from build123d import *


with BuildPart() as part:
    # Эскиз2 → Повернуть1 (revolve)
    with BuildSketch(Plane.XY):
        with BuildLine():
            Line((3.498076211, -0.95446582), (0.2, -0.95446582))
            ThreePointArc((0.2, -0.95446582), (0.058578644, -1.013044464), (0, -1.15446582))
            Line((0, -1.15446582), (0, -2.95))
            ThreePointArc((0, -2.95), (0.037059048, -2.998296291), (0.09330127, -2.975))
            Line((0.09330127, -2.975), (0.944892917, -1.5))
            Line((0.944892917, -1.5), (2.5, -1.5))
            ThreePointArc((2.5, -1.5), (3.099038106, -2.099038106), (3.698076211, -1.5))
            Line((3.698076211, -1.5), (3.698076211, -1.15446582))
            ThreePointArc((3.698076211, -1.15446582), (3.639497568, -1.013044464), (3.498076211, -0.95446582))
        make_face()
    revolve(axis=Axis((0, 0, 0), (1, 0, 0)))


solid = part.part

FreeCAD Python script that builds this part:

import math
import FreeCAD as App
import Part
import Sketcher

V = App.Vector
Q = App.Units.Quantity

doc = App.newDocument("Part")
body = doc.addObject("PartDesign::Body", "Body")

# Sketch on XY plane
sketch1 = body.newObject("Sketcher::SketchObject", "Sketch")
sketch1.AttachmentSupport = (doc.getObject("XY_Plane"), [""])
sketch1.MapMode = "FlatFace"
sketch1.addGeometry([
    Part.LineSegment(V(3.5, -0.95, 0), V(0.2, -0.95, 0)),  # 0
    Part.ArcOfCircle(Part.Circle(V(0.2, -1.15, 0), V(0, 0, 1), 0.2), math.radians(90), math.radians(180)),  # 1
    Part.LineSegment(V(0, -1.15, 0), V(0, -2.95, 0)),  # 2
    Part.ArcOfCircle(Part.Circle(V(0.05, -2.95, 0), V(0, 0, 1), 0.05), math.radians(180), math.radians(330)),  # 3
    Part.LineSegment(V(0.09, -2.98, 0), V(0.94, -1.5, 0)),  # 4
    Part.LineSegment(V(0.94, -1.5, 0), V(2.5, -1.5, 0)),  # 5
    Part.ArcOfCircle(Part.Circle(V(3.1, -1.5, 0), V(0, 0, 1), 0.6), math.radians(180), math.radians(360)),  # 6
    Part.LineSegment(V(3.7, -1.5, 0), V(3.7, -1.15, 0)),  # 7
    Part.ArcOfCircle(Part.Circle(V(3.5, -1.15, 0), V(0, 0, 1), 0.2), math.radians(0), math.radians(90)),  # 8
], False)
sketch1.addConstraint([
    Sketcher.Constraint("Tangent", 0, 2, 1, 1),
    Sketcher.Constraint("Tangent", 1, 2, 2, 1),
    Sketcher.Constraint("Tangent", 2, 2, 3, 1),
    Sketcher.Constraint("Tangent", 3, 2, 4, 1),
    Sketcher.Constraint("Coincident", 4, 2, 5, 1),
    Sketcher.Constraint("Coincident", 5, 2, 6, 1),
    Sketcher.Constraint("Tangent", 6, 2, 7, 1),
    Sketcher.Constraint("Tangent", 7, 2, 8, 1),
    Sketcher.Constraint("Tangent", 8, 2, 0, 1),
    Sketcher.Constraint("Horizontal", 0),
    Sketcher.Constraint("Vertical", 2),
    Sketcher.Constraint("Horizontal", 5),
    Sketcher.Constraint("Vertical", 7),
    Sketcher.Constraint("Equal", 1, 8),
    Sketcher.Constraint("PointOnObject", 1, 2, -2),
    Sketcher.Constraint("Horizontal", 6, 3, 4, 2),
    Sketcher.Constraint("Radius", 1, Q("0.2 mm")),
    Sketcher.Constraint("Angle", 4, Q("60 deg")),
    Sketcher.Constraint("Radius", 3, Q("0.05 mm")),
    Sketcher.Constraint("DistanceY", 6, 3, -1, 1, Q("1.5 mm")),
    Sketcher.Constraint("DistanceX", -1, 1, 5, 2, Q("2.5 mm")),
    Sketcher.Constraint("DistanceY", 3, 3, -1, 1, Q("2.95 mm")),
    Sketcher.Constraint("Radius", 6, Q("0.599038 mm")),
    Sketcher.Constraint("DistanceY", 2, 2, 2, 1, Q("1.795534 mm")),
])
revolution = body.newObject("PartDesign::Revolution", "Revolution")
revolution.Profile = sketch1
revolution.ReferenceAxis = (sketch1, ["H_Axis"])
revolution.Angle = 360

doc.recompute()
